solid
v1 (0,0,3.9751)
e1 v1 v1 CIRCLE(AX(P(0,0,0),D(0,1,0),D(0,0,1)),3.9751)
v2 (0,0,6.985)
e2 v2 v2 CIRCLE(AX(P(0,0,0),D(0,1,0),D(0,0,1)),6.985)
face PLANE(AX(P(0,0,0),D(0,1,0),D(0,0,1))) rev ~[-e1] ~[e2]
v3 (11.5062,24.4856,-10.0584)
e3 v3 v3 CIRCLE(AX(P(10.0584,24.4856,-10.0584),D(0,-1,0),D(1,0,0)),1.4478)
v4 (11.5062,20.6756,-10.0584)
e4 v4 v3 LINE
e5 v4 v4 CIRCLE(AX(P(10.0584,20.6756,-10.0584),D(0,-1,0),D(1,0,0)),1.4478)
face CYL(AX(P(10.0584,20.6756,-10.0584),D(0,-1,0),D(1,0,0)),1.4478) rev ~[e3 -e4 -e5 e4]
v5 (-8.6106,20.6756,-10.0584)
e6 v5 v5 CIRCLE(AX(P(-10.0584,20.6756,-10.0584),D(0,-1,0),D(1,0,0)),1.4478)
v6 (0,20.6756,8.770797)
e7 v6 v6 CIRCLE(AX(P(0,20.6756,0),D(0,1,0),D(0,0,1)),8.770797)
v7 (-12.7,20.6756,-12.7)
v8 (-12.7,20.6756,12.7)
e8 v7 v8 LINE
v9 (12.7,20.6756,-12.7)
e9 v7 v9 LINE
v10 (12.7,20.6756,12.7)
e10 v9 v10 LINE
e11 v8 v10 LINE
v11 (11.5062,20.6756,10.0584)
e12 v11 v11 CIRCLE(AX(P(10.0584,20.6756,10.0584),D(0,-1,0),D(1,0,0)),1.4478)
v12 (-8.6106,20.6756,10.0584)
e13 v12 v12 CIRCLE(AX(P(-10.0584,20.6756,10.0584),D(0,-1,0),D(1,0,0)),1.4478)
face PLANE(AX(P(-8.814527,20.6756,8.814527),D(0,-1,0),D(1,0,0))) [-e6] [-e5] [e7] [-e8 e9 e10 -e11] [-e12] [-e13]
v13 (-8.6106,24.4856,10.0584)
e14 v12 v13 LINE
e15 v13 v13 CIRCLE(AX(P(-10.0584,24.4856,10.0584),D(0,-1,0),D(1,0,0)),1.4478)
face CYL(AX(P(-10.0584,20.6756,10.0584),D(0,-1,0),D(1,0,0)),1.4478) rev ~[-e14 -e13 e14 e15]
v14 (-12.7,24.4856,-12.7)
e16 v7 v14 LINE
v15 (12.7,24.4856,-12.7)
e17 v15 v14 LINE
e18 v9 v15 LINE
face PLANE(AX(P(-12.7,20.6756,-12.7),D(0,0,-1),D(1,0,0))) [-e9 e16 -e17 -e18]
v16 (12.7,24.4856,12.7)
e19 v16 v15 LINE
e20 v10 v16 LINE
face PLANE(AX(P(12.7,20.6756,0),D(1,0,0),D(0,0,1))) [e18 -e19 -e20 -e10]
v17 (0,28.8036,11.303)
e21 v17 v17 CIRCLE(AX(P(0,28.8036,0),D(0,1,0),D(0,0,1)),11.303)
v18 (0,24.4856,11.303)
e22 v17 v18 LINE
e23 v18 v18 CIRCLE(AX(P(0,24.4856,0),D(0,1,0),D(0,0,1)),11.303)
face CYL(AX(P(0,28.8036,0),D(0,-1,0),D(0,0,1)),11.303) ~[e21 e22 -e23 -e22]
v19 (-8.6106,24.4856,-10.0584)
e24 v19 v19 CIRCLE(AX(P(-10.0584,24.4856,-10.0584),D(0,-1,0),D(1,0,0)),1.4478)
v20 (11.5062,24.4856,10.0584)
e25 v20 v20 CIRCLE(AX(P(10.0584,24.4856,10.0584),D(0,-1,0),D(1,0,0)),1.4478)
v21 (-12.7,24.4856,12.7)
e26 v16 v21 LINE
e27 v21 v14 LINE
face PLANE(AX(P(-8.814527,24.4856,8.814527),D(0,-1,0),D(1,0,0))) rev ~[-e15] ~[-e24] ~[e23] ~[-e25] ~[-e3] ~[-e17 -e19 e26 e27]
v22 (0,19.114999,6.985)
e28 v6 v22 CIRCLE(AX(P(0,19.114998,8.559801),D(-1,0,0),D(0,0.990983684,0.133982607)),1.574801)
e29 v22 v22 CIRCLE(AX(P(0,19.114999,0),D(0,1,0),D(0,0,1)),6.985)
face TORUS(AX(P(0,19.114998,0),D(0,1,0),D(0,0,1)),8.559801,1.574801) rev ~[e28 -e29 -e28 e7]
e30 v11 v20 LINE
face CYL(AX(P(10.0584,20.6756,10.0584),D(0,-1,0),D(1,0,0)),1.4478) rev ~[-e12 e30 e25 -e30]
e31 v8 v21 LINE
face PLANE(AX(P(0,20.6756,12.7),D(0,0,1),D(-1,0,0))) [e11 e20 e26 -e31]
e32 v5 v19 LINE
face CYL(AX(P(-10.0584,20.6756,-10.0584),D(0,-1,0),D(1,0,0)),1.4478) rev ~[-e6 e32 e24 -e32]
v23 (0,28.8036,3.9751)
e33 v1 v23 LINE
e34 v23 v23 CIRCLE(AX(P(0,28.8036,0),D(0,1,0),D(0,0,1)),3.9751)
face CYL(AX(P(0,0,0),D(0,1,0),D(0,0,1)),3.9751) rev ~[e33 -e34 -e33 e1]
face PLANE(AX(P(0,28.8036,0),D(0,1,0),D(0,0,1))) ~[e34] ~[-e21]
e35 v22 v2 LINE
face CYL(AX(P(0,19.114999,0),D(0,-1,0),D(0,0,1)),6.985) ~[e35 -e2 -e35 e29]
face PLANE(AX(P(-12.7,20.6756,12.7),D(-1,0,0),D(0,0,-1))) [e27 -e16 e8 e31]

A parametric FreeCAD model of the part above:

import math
import FreeCAD as App
import Part
import Sketcher
Q = App.Units.Quantity

doc = App.newDocument("Part")
body = doc.addObject("PartDesign::Body", "Body")

sketch1 = body.newObject("Sketcher::SketchObject", "Sketch")
sketch1.AttachmentSupport = (doc.getObject("YZ_Plane"), [""])
sketch1.MapMode = "FlatFace"
sketch1.addGeometry(Part.LineSegment(App.Vector(19.1, 7, 0), App.Vector(0, 7, 0)), False)
sketch1.addGeometry(Part.LineSegment(App.Vector(0, 7, 0), App.Vector(0, 4, 0)), False)
sketch1.addGeometry(Part.LineSegment(App.Vector(0, 4, 0), App.Vector(28.8, 4, 0)), False)
sketch1.addGeometry(Part.LineSegment(App.Vector(28.8, 4, 0), App.Vector(28.8, 11.3, 0)), False)
sketch1.addGeometry(Part.LineSegment(App.Vector(28.8, 11.3, 0), App.Vector(24.5, 11.3, 0)), False)
sketch1.addGeometry(Part.LineSegment(App.Vector(24.5, 11.3, 0), App.Vector(24.5, 12.7, 0)), False)
sketch1.addGeometry(Part.LineSegment(App.Vector(24.5, 12.7, 0), App.Vector(20.7, 12.7, 0)), False)
sketch1.addGeometry(Part.LineSegment(App.Vector(20.7, 12.7, 0), App.Vector(20.7, 8.8, 0)), False)
sketch1.addGeometry(Part.ArcOfCircle(Part.Circle(App.Vector(19.1, 8.6, 0), App.Vector(0, 0, 1), 1.6), math.radians(-90), math.radians(8)), False)
sketch1.addConstraint(Sketcher.Constraint("Coincident", 0, 2, 1, 1))
sketch1.addConstraint(Sketcher.Constraint("Coincident", 1, 2, 2, 1))
sketch1.addConstraint(Sketcher.Constraint("Coincident", 2, 2, 3, 1))
sketch1.addConstraint(Sketcher.Constraint("Coincident", 3, 2, 4, 1))
sketch1.addConstraint(Sketcher.Constraint("Coincident", 4, 2, 5, 1))
sketch1.addConstraint(Sketcher.Constraint("Coincident", 5, 2, 6, 1))
sketch1.addConstraint(Sketcher.Constraint("Coincident", 6, 2, 7, 1))
sketch1.addConstraint(Sketcher.Constraint("Coincident", 7, 2, 8, 2))
sketch1.addConstraint(Sketcher.Constraint("Tangent", 8, 1, 0, 1))
sketch1.addConstraint(Sketcher.Constraint("Horizontal", 0))
sketch1.addConstraint(Sketcher.Constraint("Vertical", 1))
sketch1.addConstraint(Sketcher.Constraint("Horizontal", 2))
sketch1.addConstraint(Sketcher.Constraint("Vertical", 3))
sketch1.addConstraint(Sketcher.Constraint("Horizontal", 4))
sketch1.addConstraint(Sketcher.Constraint("Vertical", 5))
sketch1.addConstraint(Sketcher.Constraint("Horizontal", 6))
sketch1.addConstraint(Sketcher.Constraint("Vertical", 7))
sketch1.addConstraint(Sketcher.Constraint("PointOnObject", 0, 2, -2))
sketch1.addConstraint(Sketcher.Constraint("Radius", 8, Q("0.062 in")))
sketch1.addConstraint(Sketcher.Constraint("DistanceX", 4, 2, 4, 1, Q("0.17 in")))
sketch1.addConstraint(Sketcher.Constraint("DistanceX", 6, 2, 6, 1, Q("0.15 in")))
sketch1.addConstraint(Sketcher.Constraint("DistanceY", -1, 1, 5, 2, Q("0.5 in")))
sketch1.addConstraint(Sketcher.Constraint("DistanceX", 2, 1, 2, 2, Q("1.134 in")))
sketch1.addConstraint(Sketcher.Constraint("DistanceY", 5, 1, 5, 2, Q("0.055 in")))
sketch1.addConstraint(Sketcher.Constraint("DistanceY", 0, 2, 3, 2, Q("0.17 in")))
sketch1.addConstraint(Sketcher.Constraint("DistanceY", 1, 2, 1, 1, Q("0.1185 in")))
sketch1.addConstraint(Sketcher.Constraint("DistanceX", 0, 2, 0, 1, Q("19.114999 mm")))
revolution = body.newObject("PartDesign::Revolution", "Revolution")
revolution.Profile = sketch1
revolution.ReferenceAxis = (sketch1, ["H_Axis"])
revolution.Angle = 360

sketch2 = body.newObject("Sketcher::SketchObject", "Sketch001")
sketch2.AttachmentSupport = (doc.getObject("XZ_Plane"), [""])
sketch2.MapMode = "FlatFace"
sketch2.AttachmentOffset = App.Placement(App.Vector(0, 0, -0.814 * 25.4), App.Rotation())
sketch2.addGeometry(Part.LineSegment(App.Vector(-13, 13, 0), App.Vector(-13, 0, 0)), False)
sketch2.addGeometry(Part.ArcOfCircle(Part.Circle(App.Vector(0, 0, 0), App.Vector(0, 0, 1), 13), math.radians(90), math.radians(180)), False)
sketch2.addGeometry(Part.LineSegment(App.Vector(0, 13, 0), App.Vector(-13, 13, 0)), False)
sketch2.addGeometry(Part.ArcOfCircle(Part.Circle(App.Vector(0, 0, 0), App.Vector(0, 0, 1), 13), math.radians(0), math.radians(90)), False)
sketch2.addGeometry(Part.LineSegment(App.Vector(13, 0, 0), App.Vector(13, 13, 0)), False)
sketch2.addGeometry(Part.LineSegment(App.Vector(13, 13, 0), App.Vector(0, 13, 0)), False)
sketch2.addGeometry(Part.LineSegment(App.Vector(0, -13, 0), App.Vector(13, -13, 0)), False)
sketch2.addGeometry(Part.LineSegment(App.Vector(13, -13, 0), App.Vector(13, 0, 0)), False)
sketch2.addGeometry(Part.ArcOfCircle(Part.Circle(App.Vector(0, 0, 0), App.Vector(0, 0, 1), 13), math.radians(-90), math.radians(0)), False)
sketch2.addGeometry(Part.LineSegment(App.Vector(-13, -13, 0), App.Vector(0, -13, 0)), False)
sketch2.addGeometry(Part.ArcOfCircle(Part.Circle(App.Vector(0, 0, 0), App.Vector(0, 0, 1), 13), math.radians(-180), math.radians(-90)), False)
sketch2.addGeometry(Part.LineSegment(App.Vector(-13, 0, 0), App.Vector(-13, -13, 0)), False)
sketch2.addConstraint(Sketcher.Constraint("Tangent", 0, 2, 1, 2))
sketch2.addConstraint(Sketcher.Constraint("Tangent", 1, 1, 2, 1))
sketch2.addConstraint(Sketcher.Constraint("Coincident", 2, 2, 0, 1))
sketch2.addConstraint(Sketcher.Constraint("Tangent", 3, 1, 4, 1))
sketch2.addConstraint(Sketcher.Constraint("Coincident", 4, 2, 5, 1))
sketch2.addConstraint(Sketcher.Constraint("Tangent", 5, 2, 3, 2))
sketch2.addConstraint(Sketcher.Constraint("Coincident", 6, 2, 7, 1))
sketch2.addConstraint(Sketcher.Constraint("Tangent", 7, 2, 8, 2))
sketch2.addConstraint(Sketcher.Constraint("Tangent", 8, 1, 6, 1))
sketch2.addConstraint(Sketcher.Constraint("Tangent", 9, 2, 10, 2))
sketch2.addConstraint(Sketcher.Constraint("Tangent", 10, 1, 11, 1))
sketch2.addConstraint(Sketcher.Constraint("Coincident", 11, 2, 9, 1))
sketch2.addConstraint(Sketcher.Constraint("Vertical", 0))
sketch2.addConstraint(Sketcher.Constraint("Horizontal", 2))
sketch2.addConstraint(Sketcher.Constraint("Vertical", 4))
sketch2.addConstraint(Sketcher.Constraint("Horizontal", 5))
sketch2.addConstraint(Sketcher.Constraint("Horizontal", 6))
sketch2.addConstraint(Sketcher.Constraint("Vertical", 7))
sketch2.addConstraint(Sketcher.Constraint("Horizontal", 9))
sketch2.addConstraint(Sketcher.Constraint("Vertical", 11))
sketch2.addConstraint(Sketcher.Constraint("Coincident", 1, 3, -1, 1))
sketch2.addConstraint(Sketcher.Constraint("Coincident", 3, 3, -1, 1))
sketch2.addConstraint(Sketcher.Constraint("Coincident", 8, 3, -1, 1))
sketch2.addConstraint(Sketcher.Constraint("Coincident", 10, 3, -1, 1))
sketch2.addConstraint(Sketcher.Constraint("Equal", 1, 3))
sketch2.addConstraint(Sketcher.Constraint("Equal", 3, 8))
sketch2.addConstraint(Sketcher.Constraint("Equal", 8, 10))
sketch2.addConstraint(Sketcher.Constraint("Radius", 1, Q("0.5 in")))
pad1 = body.newObject("PartDesign::Pad", "Pad")
pad1.Profile = sketch2
pad1.Length = Q("0.15 in")
pad1.Reversed = True

sketch3 = body.newObject("Sketcher::SketchObject", "Sketch002")
sketch3.AttachmentSupport = (doc.getObject("XZ_Plane"), [""])
sketch3.MapMode = "FlatFace"
sketch3.AttachmentOffset = App.Placement(App.Vector(0, 0, -0.814 * 25.4), App.Rotation())
sketch3.addGeometry(Part.Circle(App.Vector(10.1, -10.1, 0), App.Vector(0, 0, 1), 1.4), False)
sketch3.addGeometry(Part.Circle(App.Vector(10.1, 10.1, 0), App.Vector(0, 0, 1), 1.4), False)
sketch3.addGeometry(Part.Circle(App.Vector(-10.1, -10.1, 0), App.Vector(0, 0, 1), 1.4), False)
sketch3.addGeometry(Part.Circle(App.Vector(-10.1, 10.1, 0), App.Vector(0, 0, 1), 1.4), False)
sketch3.addConstraint(Sketcher.Constraint("Equal", 0, 1))
sketch3.addConstraint(Sketcher.Constraint("Equal", 1, 2))
sketch3.addConstraint(Sketcher.Constraint("Equal", 2, 3))
sketch3.addConstraint(Sketcher.Constraint("Symmetric", 1, 3, 2, 3, -1, 1))
sketch3.addConstraint(Sketcher.Constraint("Symmetric", 0, 3, 3, 3, -1, 1))
sketch3.addConstraint(Sketcher.Constraint("Symmetric", 0, 3, 2, 3, -2))
sketch3.addConstraint(Sketcher.Constraint("Diameter", 0, Q("0.114 in")))
sketch3.addConstraint(Sketcher.Constraint("DistanceX", -1, 1, 0, 3, Q("0.396 in")))
sketch3.addConstraint(Sketcher.Constraint("DistanceY", 0, 3, -1, 1, Q("0.396 in")))
pocket1 = body.newObject("PartDesign::Pocket", "Pocket")
pocket1.Profile = sketch3
pocket1.Length = Q("1 in")

doc.recompute()
